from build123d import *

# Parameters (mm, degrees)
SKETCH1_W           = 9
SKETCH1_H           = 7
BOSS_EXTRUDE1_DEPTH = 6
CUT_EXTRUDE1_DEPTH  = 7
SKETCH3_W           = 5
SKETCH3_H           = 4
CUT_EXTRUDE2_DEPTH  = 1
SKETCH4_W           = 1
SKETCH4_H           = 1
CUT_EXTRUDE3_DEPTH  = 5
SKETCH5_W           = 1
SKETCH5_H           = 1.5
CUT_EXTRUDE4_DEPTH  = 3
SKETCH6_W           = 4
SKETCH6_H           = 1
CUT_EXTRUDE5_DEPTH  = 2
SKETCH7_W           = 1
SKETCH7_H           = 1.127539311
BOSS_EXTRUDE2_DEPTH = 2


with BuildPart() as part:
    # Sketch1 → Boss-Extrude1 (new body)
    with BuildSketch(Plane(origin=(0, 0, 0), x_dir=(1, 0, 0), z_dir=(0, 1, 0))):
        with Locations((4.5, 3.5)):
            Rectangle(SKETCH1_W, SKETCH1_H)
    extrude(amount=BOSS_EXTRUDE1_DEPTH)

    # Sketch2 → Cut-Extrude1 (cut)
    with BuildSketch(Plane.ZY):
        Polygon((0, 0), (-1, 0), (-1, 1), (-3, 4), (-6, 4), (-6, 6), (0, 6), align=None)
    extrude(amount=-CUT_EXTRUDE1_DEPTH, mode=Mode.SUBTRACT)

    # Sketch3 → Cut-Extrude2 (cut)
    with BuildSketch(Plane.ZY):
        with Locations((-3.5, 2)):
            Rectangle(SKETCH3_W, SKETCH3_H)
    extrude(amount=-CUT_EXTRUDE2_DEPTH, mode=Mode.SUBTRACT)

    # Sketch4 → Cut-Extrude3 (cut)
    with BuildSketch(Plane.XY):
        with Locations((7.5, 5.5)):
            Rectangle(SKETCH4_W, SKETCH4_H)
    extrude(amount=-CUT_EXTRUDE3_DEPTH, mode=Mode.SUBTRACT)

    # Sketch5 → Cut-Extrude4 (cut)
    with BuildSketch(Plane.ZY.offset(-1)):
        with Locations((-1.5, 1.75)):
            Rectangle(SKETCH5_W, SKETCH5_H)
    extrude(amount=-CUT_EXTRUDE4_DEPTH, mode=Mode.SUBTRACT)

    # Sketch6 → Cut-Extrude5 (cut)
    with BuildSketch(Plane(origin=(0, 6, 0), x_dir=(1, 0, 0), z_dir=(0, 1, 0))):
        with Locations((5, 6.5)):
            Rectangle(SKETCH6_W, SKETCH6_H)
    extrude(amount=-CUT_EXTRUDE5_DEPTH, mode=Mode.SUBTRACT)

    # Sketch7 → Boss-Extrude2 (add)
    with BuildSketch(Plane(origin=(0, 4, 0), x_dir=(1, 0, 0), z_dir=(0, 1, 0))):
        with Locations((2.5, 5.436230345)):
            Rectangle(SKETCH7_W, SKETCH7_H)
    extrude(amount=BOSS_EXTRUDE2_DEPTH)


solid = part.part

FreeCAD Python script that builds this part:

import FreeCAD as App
import Part
import Sketcher

V = App.Vector
Q = App.Units.Quantity


def add_polygon(sketch, points):
    """Adds a closed chain of lines whose ends are joined by coincident constraints."""
    first, n = sketch.GeometryCount, len(points)
    for a, b in zip(points, points[1:] + points[:1]):
        sketch.addGeometry(Part.LineSegment(App.Vector(*a, 0), App.Vector(*b, 0)), False)
    for i in range(n):
        sketch.addConstraint(Sketcher.Constraint("Coincident", first + i, 2, first + (i + 1) % n, 1))

doc = App.newDocument("Part")
body = doc.addObject("PartDesign::Body", "Body")

sketch1 = doc.addObject("Sketcher::SketchObject", "Sketch")
body.addObject(sketch1)
sketch1.AttachmentSupport = (doc.XZ_Plane, [""])
sketch1.MapMode = "FlatFace"
add_polygon(sketch1, [(0, -7), (0, 0), (9, 0), (9, -7)])
sketch1.addConstraint([
    Sketcher.Constraint("Vertical", 0),
    Sketcher.Constraint("Horizontal", 1),
    Sketcher.Constraint("Vertical", 2),
    Sketcher.Constraint("Horizontal", 3),
    Sketcher.Constraint("Coincident", 0, 2, -1, 1),
    Sketcher.Constraint("DistanceX", 1, 1, 1, 2, Q("9 mm")),
    Sketcher.Constraint("DistanceY", 0, 1, 0, 2, Q("7 mm")),
])
pad1 = doc.addObject("PartDesign::Pad", "Pad")
body.addObject(pad1)
pad1.Profile = sketch1
pad1.Length = 6
pad1.Reversed = True

sketch2 = doc.addObject("Sketcher::SketchObject", "Sketch001")
body.addObject(sketch2)
sketch2.AttachmentSupport = (doc.YZ_Plane, [""])
sketch2.MapMode = "FlatFace"
add_polygon(sketch2, [(0, -1), (0, 0), (6, 0), (6, -6), (4, -6), (4, -3), (1, -1)])
sketch2.addConstraint([
    Sketcher.Constraint("Vertical", 0),
    Sketcher.Constraint("Horizontal", 1),
    Sketcher.Constraint("Vertical", 2),
    Sketcher.Constraint("Horizontal", 3),
    Sketcher.Constraint("Vertical", 4),
    Sketcher.Constraint("Horizontal", 6),
    Sketcher.Constraint("Coincident", 0, 2, -1, 1),
    Sketcher.Constraint("Equal", 6, 0),
    Sketcher.Constraint("Equal", 1, 2),
    Sketcher.Constraint("DistanceX", 1, 1, 1, 2, Q("6 mm")),
    Sketcher.Constraint("DistanceX", 3, 2, 3, 1, Q("2 mm")),
    Sketcher.Constraint("DistanceX", 6, 2, 6, 1, Q("1 mm")),
    Sketcher.Constraint("DistanceY", 4, 1, 4, 2, Q("3 mm")),
])
pocket1 = doc.addObject("PartDesign::Pocket", "Pocket")
body.addObject(pocket1)
pocket1.Profile = sketch2
pocket1.Length = 7
pocket1.Reversed = True

sketch3 = doc.addObject("Sketcher::SketchObject", "Sketch002")
body.addObject(sketch3)
sketch3.AttachmentSupport = (doc.YZ_Plane, [""])
sketch3.MapMode = "FlatFace"
add_polygon(sketch3, [(4, -6), (0, -6), (0, -1), (4, -1)])
sketch3.addConstraint([
    Sketcher.Constraint("Horizontal", 0),
    Sketcher.Constraint("Vertical", 1),
    Sketcher.Constraint("Horizontal", 2),
    Sketcher.Constraint("Vertical", 3),
    Sketcher.Constraint("PointOnObject", 0, 2, -2),
    Sketcher.Constraint("DistanceX", 0, 2, 0, 1, Q("4 mm")),
    Sketcher.Constraint("DistanceY", 1, 1, 1, 2, Q("5 mm")),
    Sketcher.Constraint("DistanceY", 0, 2, -1, 1, Q("6 mm")),
])
pocket2 = doc.addObject("PartDesign::Pocket", "Pocket001")
body.addObject(pocket2)
pocket2.Profile = sketch3
pocket2.Length = 1
pocket2.Reversed = True

sketch4 = doc.addObject("Sketcher::SketchObject", "Sketch003")
body.addObject(sketch4)
sketch4.AttachmentSupport = (doc.XY_Plane, [""])
sketch4.MapMode = "FlatFace"
add_polygon(sketch4, [(7, 6), (7, 5), (8, 5), (8, 6)])
sketch4.addConstraint([
    Sketcher.Constraint("Vertical", 0),
    Sketcher.Constraint("Horizontal", 1),
    Sketcher.Constraint("Vertical", 2),
    Sketcher.Constraint("Horizontal", 3),
    Sketcher.Constraint("Equal", 3, 0),
    Sketcher.Constraint("DistanceX", 1, 1, 1, 2, Q("1 mm")),
    Sketcher.Constraint("DistanceX", -1, 1, 0, 2, Q("7 mm")),
    Sketcher.Constraint("DistanceY", -1, 1, 0, 2, Q("5 mm")),
])
pocket3 = doc.addObject("PartDesign::Pocket", "Pocket002")
body.addObject(pocket3)
pocket3.Profile = sketch4
pocket3.Length = 5

sketch5 = doc.addObject("Sketcher::SketchObject", "Sketch004")
body.addObject(sketch5)
sketch5.AttachmentSupport = (doc.YZ_Plane, [""])
sketch5.MapMode = "FlatFace"
sketch5.AttachmentOffset = App.Placement(V(0, 0, 1), App.Rotation())
add_polygon(sketch5, [(2.5, -2), (1, -2), (1, -1), (2.5, -1)])
sketch5.addConstraint([
    Sketcher.Constraint("Horizontal", 0),
    Sketcher.Constraint("Vertical", 1),
    Sketcher.Constraint("Horizontal", 2),
    Sketcher.Constraint("Vertical", 3),
    Sketcher.Constraint("DistanceY", 1, 1, 1, 2, Q("1 mm")),
    Sketcher.Constraint("DistanceX", 0, 2, 0, 1, Q("1.5 mm")),
    Sketcher.Constraint("DistanceX", -1, 1, 0, 2, Q("1 mm")),
    Sketcher.Constraint("DistanceY", 0, 2, -1, 1, Q("2 mm")),
])
pocket4 = doc.addObject("PartDesign::Pocket", "Pocket003")
body.addObject(pocket4)
pocket4.Profile = sketch5
pocket4.Length = 3
pocket4.Reversed = True

sketch6 = doc.addObject("Sketcher::SketchObject", "Sketch005")
body.addObject(sketch6)
sketch6.AttachmentSupport = (doc.XZ_Plane, [""])
sketch6.MapMode = "FlatFace"
sketch6.AttachmentOffset = App.Placement(V(0, 0, -6), App.Rotation())
add_polygon(sketch6, [(3, -7), (3, -6), (7, -6), (7, -7)])
sketch6.addConstraint([
    Sketcher.Constraint("Vertical", 0),
    Sketcher.Constraint("Horizontal", 1),
    Sketcher.Constraint("Vertical", 2),
    Sketcher.Constraint("Horizontal", 3),
    Sketcher.Constraint("DistanceX", 1, 1, 1, 2, Q("4 mm")),
    Sketcher.Constraint("DistanceY", 0, 1, 0, 2, Q("1 mm")),
    Sketcher.Constraint("DistanceX", -1, 1, 0, 2, Q("3 mm")),
    Sketcher.Constraint("DistanceY", 0, 2, -1, 1, Q("6 mm")),
])
pocket5 = doc.addObject("PartDesign::Pocket", "Pocket004")
body.addObject(pocket5)
pocket5.Profile = sketch6
pocket5.Length = 2
pocket5.Reversed = True

sketch7 = doc.addObject("Sketcher::SketchObject", "Sketch006")
body.addObject(sketch7)
sketch7.AttachmentSupport = (doc.XZ_Plane, [""])
sketch7.MapMode = "FlatFace"
sketch7.AttachmentOffset = App.Placement(V(0, 0, -4), App.Rotation())
add_polygon(sketch7, [(2, -6), (2, -4.872461), (3, -4.872461), (3, -6)])
sketch7.addConstraint([
    Sketcher.Constraint("Vertical", 0),
    Sketcher.Constraint("Horizontal", 1),
    Sketcher.Constraint("Vertical", 2),
    Sketcher.Constraint("Horizontal", 3),
    Sketcher.Constraint("DistanceX", 1, 1, 1, 2, Q("1 mm")),
    Sketcher.Constraint("DistanceX", -1, 1, 0, 2, Q("2 mm")),
    Sketcher.Constraint("DistanceY", 2, 2, -1, 1, Q("6 mm")),
    Sketcher.Constraint("DistanceY", 0, 1, 0, 2, Q("1.127539 mm")),
])
pad2 = doc.addObject("PartDesign::Pad", "Pad001")
body.addObject(pad2)
pad2.Profile = sketch7
pad2.Length = 2
pad2.Reversed = True

doc.recompute()
